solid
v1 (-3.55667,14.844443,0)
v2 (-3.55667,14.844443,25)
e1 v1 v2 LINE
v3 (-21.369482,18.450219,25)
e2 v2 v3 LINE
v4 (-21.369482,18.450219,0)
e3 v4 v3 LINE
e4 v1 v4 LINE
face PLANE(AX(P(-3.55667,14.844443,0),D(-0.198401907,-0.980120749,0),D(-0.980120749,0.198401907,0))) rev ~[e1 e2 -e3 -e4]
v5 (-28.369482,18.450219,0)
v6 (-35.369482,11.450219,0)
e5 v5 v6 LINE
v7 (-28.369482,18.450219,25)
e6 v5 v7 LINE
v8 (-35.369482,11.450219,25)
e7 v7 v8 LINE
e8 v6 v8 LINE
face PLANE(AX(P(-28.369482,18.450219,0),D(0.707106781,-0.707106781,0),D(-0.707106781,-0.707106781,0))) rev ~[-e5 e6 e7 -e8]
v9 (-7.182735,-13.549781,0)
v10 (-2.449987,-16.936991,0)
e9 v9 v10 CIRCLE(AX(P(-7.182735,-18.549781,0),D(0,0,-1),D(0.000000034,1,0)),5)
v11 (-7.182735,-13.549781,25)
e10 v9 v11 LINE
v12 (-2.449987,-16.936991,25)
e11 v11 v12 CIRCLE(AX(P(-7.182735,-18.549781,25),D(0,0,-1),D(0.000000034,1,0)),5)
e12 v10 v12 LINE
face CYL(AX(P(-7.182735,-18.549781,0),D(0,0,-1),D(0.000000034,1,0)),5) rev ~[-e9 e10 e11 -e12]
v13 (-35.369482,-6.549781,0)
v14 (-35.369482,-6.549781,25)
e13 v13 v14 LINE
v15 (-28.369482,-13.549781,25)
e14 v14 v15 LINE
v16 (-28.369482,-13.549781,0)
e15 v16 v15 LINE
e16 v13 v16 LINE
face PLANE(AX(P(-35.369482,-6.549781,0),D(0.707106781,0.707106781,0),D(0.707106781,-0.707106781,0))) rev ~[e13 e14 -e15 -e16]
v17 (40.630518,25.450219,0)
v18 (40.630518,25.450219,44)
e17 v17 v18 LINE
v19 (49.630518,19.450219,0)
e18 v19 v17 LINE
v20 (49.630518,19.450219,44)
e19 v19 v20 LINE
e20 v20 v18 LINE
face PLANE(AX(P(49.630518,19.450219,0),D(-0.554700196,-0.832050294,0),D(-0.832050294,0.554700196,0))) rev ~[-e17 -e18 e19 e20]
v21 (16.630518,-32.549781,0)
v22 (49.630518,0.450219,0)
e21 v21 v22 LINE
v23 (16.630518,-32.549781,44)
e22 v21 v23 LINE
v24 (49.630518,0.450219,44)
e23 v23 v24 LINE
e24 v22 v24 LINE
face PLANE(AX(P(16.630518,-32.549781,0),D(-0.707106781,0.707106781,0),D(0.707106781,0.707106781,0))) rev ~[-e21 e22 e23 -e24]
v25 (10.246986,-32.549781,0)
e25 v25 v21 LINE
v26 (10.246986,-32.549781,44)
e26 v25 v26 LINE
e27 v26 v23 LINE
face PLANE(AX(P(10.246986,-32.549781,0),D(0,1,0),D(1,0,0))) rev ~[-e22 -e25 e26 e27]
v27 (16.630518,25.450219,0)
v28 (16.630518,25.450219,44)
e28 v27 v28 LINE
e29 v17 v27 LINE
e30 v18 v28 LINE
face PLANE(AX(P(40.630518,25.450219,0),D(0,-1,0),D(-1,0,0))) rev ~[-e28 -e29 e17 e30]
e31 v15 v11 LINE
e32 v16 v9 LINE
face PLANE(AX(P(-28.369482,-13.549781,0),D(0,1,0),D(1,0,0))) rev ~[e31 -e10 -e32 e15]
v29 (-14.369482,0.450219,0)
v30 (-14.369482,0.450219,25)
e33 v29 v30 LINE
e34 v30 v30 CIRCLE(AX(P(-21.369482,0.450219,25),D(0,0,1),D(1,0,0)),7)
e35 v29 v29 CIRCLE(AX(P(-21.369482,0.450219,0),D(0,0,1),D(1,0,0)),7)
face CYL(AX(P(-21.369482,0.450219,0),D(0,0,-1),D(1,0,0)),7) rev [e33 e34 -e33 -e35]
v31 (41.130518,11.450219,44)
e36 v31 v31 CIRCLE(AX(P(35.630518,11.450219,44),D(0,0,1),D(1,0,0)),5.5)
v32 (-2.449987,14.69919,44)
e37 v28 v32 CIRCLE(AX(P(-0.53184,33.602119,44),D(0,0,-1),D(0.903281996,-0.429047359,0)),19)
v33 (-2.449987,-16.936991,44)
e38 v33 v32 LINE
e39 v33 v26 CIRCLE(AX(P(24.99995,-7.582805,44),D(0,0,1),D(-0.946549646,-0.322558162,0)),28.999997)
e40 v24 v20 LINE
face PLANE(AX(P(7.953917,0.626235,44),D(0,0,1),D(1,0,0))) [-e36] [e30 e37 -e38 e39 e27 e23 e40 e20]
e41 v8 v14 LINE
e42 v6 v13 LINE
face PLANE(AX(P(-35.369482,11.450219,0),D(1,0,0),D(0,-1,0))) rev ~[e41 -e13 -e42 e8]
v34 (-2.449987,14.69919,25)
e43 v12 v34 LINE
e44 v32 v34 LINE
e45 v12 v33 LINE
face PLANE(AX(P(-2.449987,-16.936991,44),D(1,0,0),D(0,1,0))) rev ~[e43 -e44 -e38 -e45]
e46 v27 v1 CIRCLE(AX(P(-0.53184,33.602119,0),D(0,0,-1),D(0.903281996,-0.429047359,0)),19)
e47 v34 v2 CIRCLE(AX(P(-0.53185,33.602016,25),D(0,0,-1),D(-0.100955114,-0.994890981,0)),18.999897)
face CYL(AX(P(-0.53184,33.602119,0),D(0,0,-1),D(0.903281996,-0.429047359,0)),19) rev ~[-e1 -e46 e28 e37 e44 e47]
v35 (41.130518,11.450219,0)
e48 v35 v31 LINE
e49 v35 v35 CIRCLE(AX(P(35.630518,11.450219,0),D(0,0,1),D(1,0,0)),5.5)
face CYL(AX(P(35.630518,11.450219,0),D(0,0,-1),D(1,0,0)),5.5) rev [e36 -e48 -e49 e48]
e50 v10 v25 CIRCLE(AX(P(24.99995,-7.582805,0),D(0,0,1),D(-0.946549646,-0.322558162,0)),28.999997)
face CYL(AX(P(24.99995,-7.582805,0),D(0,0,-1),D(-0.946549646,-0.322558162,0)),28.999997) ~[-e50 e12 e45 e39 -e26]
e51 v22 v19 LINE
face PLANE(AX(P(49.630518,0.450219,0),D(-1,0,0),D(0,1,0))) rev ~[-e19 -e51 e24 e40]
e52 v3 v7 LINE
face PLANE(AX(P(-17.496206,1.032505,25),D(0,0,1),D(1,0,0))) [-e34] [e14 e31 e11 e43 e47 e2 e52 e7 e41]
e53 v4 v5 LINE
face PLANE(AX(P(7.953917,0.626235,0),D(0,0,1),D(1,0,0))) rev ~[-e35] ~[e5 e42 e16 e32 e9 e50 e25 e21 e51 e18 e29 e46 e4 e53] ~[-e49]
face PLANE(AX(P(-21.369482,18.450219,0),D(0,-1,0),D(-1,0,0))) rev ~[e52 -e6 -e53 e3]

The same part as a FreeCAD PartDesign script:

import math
import FreeCAD as App
import Part
import Sketcher

V = App.Vector

doc = App.newDocument("Part")
body = doc.addObject("PartDesign::Body", "Body")

sketch1 = body.newObject("Sketcher::SketchObject", "Sketch")
sketch1.AttachmentSupport = (doc.getObject("XY_Plane"), [""])
sketch1.MapMode = "FlatFace"
sketch1.addGeometry([
    Part.LineSegment(V(-28.4, 18.5, 0), V(-35.4, 11.5, 0)),
    Part.LineSegment(V(-35.4, 11.5, 0), V(-35.4, -6.5, 0)),
    Part.LineSegment(V(-35.4, -6.5, 0), V(-28.4, -13.5, 0)),
    Part.LineSegment(V(-28.4, -13.5, 0), V(-7.2, -13.5, 0)),
    Part.ArcOfCircle(Part.Circle(V(-7.2, -18.5, 0), V(0, 0, 1), 5), math.radians(19), math.radians(90)),
    Part.ArcOfCircle(Part.Circle(V(25, -7.6, 0), V(0, 0, 1), 29), math.radians(-161), math.radians(-121)),
    Part.LineSegment(V(10.2, -32.5, 0), V(16.6, -32.5, 0)),
    Part.LineSegment(V(16.6, -32.5, 0), V(49.6, 0.5, 0)),
    Part.LineSegment(V(49.6, 0.5, 0), V(49.6, 19.5, 0)),
    Part.LineSegment(V(49.6, 19.5, 0), V(40.6, 25.5, 0)),
    Part.LineSegment(V(40.6, 25.5, 0), V(16.6, 25.5, 0)),
    Part.ArcOfCircle(Part.Circle(V(-0.5, 33.6, 0), V(0, 0, 1), 19), math.radians(-99), math.radians(-25)),
    Part.LineSegment(V(-3.6, 14.8, 0), V(-21.4, 18.5, 0)),
    Part.LineSegment(V(-21.4, 18.5, 0), V(-28.4, 18.5, 0)),
    Part.Circle(V(-21.4, 0.5, 0), V(0, 0, 1), 7),
    Part.Circle(V(35.6, 11.5, 0), V(0, 0, 1), 5.5),
], False)
sketch1.addConstraint([
    Sketcher.Constraint("Coincident", 0, 2, 1, 1),
    Sketcher.Constraint("Coincident", 1, 2, 2, 1),
    Sketcher.Constraint("Coincident", 2, 2, 3, 1),
    Sketcher.Constraint("Tangent", 3, 2, 4, 2),
    Sketcher.Constraint("Tangent", 4, 1, 5, 1),
    Sketcher.Constraint("Coincident", 5, 2, 6, 1),
    Sketcher.Constraint("Coincident", 6, 2, 7, 1),
    Sketcher.Constraint("Coincident", 7, 2, 8, 1),
    Sketcher.Constraint("Coincident", 8, 2, 9, 1),
    Sketcher.Constraint("Coincident", 9, 2, 10, 1),
    Sketcher.Constraint("Coincident", 10, 2, 11, 2),
    Sketcher.Constraint("Coincident", 11, 1, 12, 1),
    Sketcher.Constraint("Coincident", 12, 2, 13, 1),
    Sketcher.Constraint("Coincident", 13, 2, 0, 1),
    Sketcher.Constraint("Vertical", 1),
    Sketcher.Constraint("Horizontal", 3),
    Sketcher.Constraint("Horizontal", 6),
    Sketcher.Constraint("Vertical", 8),
    Sketcher.Constraint("Horizontal", 10),
    Sketcher.Constraint("Horizontal", 13),
    Sketcher.Constraint("Perpendicular", 0, 2),
    Sketcher.Constraint("Perpendicular", 2, 7),
    Sketcher.Constraint("Horizontal", 15, 3, 0, 2),
    Sketcher.Constraint("Horizontal", 14, 3, 7, 2),
    Sketcher.Constraint("Vertical", 6, 2, 10, 2),
    Sketcher.Constraint("Vertical", 14, 3, 12, 2),
    Sketcher.Constraint("Vertical", 2, 2, 13, 2),
    Sketcher.Constraint("Equal", 0, 2),
    Sketcher.Constraint("Diameter", 14, 14.0),
    Sketcher.Constraint("Diameter", 15, 11.0),
    Sketcher.Constraint("Radius", 4, 5.0),
    Sketcher.Constraint("Radius", 11, 19.0),
    Sketcher.Constraint("DistanceX", 10, 2, 10, 1, 24.0),
    Sketcher.Constraint("DistanceX", 13, 2, 13, 1, 7.0),
    Sketcher.Constraint("DistanceY", 1, 2, 1, 1, 18.0),
    Sketcher.Constraint("DistanceY", 8, 1, 8, 2, 19.0),
    Sketcher.Constraint("DistanceY", 4, 3, 14, 3, 19.0),
    Sketcher.Constraint("DistanceY", 4, 3, 15, 3, 30.0),
    Sketcher.Constraint("DistanceX", 14, 3, 15, 3, 57.0),
    Sketcher.Constraint("DistanceY", 5, 2, 4, 3, 14.0),
    Sketcher.Constraint("DistanceX", 15, 3, 7, 2, 14.0),
    Sketcher.Constraint("DistanceY", 8, 2, 9, 2, 6.0),
    Sketcher.Constraint("Radius", 5, 28.999997),
    Sketcher.Constraint("Distance", 12, 18.174099),
    Sketcher.Constraint("DistanceX", 6, 1, 6, 2, 6.383532),
    Sketcher.Constraint("DistanceY", 4, 3, 11, 3, 52.151899),
    Sketcher.Constraint("DistanceX", 3, 1, 3, 2, 21.186747),
    Sketcher.Constraint("DistanceY", 4, 3, -1, 1, 18.549781),
    Sketcher.Constraint("DistanceX", -1, 1, 5, 3, 24.99995),
])
pad1 = body.newObject("PartDesign::Pad", "Pad")
pad1.Profile = sketch1
pad1.Length = 44

sketch2 = body.newObject("Sketcher::SketchObject", "Sketch001")
sketch2.AttachmentSupport = (doc.getObject("XY_Plane"), [""])
sketch2.MapMode = "FlatFace"
sketch2.AttachmentOffset = App.Placement(V(0, 0, 44), App.Rotation())
sketch2.addGeometry([
    Part.LineSegment(V(-2.4, -16.9, 0), V(-2.4, 14.7, 0)),
    Part.ArcOfCircle(Part.Circle(V(-0.5, 33.6, 0), V(0, 0, 1), 19), math.radians(-99.16), math.radians(-95.79)),
    Part.LineSegment(V(-3.6, 14.8, 0), V(-21.4, 18.5, 0)),
    Part.LineSegment(V(-21.4, 18.5, 0), V(-28.4, 18.5, 0)),
    Part.LineSegment(V(-28.4, 18.5, 0), V(-35.4, 11.5, 0)),
    Part.LineSegment(V(-35.4, 11.5, 0), V(-35.4, -6.5, 0)),
    Part.LineSegment(V(-35.4, -6.5, 0), V(-28.4, -13.5, 0)),
    Part.LineSegment(V(-28.4, -13.5, 0), V(-7.2, -13.5, 0)),
    Part.ArcOfCircle(Part.Circle(V(-7.2, -18.5, 0), V(0, 0, 1), 5), math.radians(19), math.radians(90)),
    Part.Circle(V(-21.4, 0.5, 0), V(0, 0, 1), 7),
], False)
sketch2.addConstraint([
    Sketcher.Constraint("Coincident", 0, 2, 1, 2),
    Sketcher.Constraint("Coincident", 1, 1, 2, 1),
    Sketcher.Constraint("Coincident", 2, 2, 3, 1),
    Sketcher.Constraint("Coincident", 3, 2, 4, 1),
    Sketcher.Constraint("Coincident", 4, 2, 5, 1),
    Sketcher.Constraint("Coincident", 5, 2, 6, 1),
    Sketcher.Constraint("Coincident", 6, 2, 7, 1),
    Sketcher.Constraint("Tangent", 7, 2, 8, 2),
    Sketcher.Constraint("Coincident", 8, 1, 0, 1),
    Sketcher.Constraint("Vertical", 0),
    Sketcher.Constraint("Horizontal", 3),
    Sketcher.Constraint("Vertical", 5),
    Sketcher.Constraint("Horizontal", 7),
    Sketcher.Constraint("Perpendicular", 4, 6),
    Sketcher.Constraint("Vertical", 9, 3, 2, 2),
    Sketcher.Constraint("Vertical", 3, 2, 6, 2),
    Sketcher.Constraint("Equal", 4, 6),
    Sketcher.Constraint("Diameter", 9, 14.0),
    Sketcher.Constraint("Radius", 8, 5.0),
    Sketcher.Constraint("DistanceX", 3, 2, 3, 1, 7.0),
    Sketcher.Constraint("DistanceY", 5, 2, 5, 1, 18.0),
    Sketcher.Constraint("DistanceY", 8, 3, 9, 3, 19.0),
    Sketcher.Constraint("DistanceY", 9, 3, 2, 2, 18.0),
    Sketcher.Constraint("Radius", 1, 18.999897),
    Sketcher.Constraint("Distance", 2, 18.174099),
    Sketcher.Constraint("DistanceY", 0, 1, 0, 2, 31.636181),
    Sketcher.Constraint("DistanceX", 7, 1, 7, 2, 21.186747),
    Sketcher.Constraint("DistanceX", 1, 3, -1, 1, 0.53185),
    Sketcher.Constraint("DistanceY", 8, 3, -1, 1, 18.549781),
    Sketcher.Constraint("DistanceY", -1, 1, 0, 2, 14.69919),
    Sketcher.Constraint("DistanceX", 1, 1, -1, 1, 3.55667),
])
pocket1 = body.newObject("PartDesign::Pocket", "Pocket")
pocket1.Profile = sketch2
pocket1.Length = 19

doc.recompute()
